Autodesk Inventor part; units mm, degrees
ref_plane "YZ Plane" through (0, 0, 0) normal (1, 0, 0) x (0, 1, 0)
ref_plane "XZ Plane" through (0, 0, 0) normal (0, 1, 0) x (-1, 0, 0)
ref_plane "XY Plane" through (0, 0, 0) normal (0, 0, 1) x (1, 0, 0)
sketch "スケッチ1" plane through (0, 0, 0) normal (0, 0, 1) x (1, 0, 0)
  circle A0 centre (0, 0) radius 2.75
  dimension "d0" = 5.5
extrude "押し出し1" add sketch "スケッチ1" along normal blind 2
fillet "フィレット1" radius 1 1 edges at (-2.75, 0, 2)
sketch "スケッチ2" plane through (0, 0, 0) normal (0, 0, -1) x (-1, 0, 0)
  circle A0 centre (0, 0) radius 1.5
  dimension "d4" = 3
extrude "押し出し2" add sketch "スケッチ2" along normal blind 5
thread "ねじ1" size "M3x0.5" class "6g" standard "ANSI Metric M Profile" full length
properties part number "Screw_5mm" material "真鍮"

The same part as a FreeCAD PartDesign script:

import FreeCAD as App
import Part
import Sketcher
from FreeCAD import Vector


def edges_at(feature, points):
    """Names of the edges that pass closest to the given points."""
    edges = feature.Shape.Edges
    near = lambda p: min(range(len(edges)), key=lambda i: edges[i].distToShape(Part.Vertex(*p))[0])
    return sorted({f"Edge{near(p) + 1}" for p in points})

doc = App.newDocument("Part")
body = doc.addObject("PartDesign::Body", "Body")

# Sketch on XY plane
sketch1 = body.newObject("Sketcher::SketchObject", "Sketch")
sketch1.AttachmentSupport = (doc.getObject("XY_Plane"), [""])
sketch1.MapMode = "FlatFace"
sketch1.addGeometry(Part.Circle(Vector(0, 0, 0), Vector(0, 0, 1), 2.8), False)
sketch1.addConstraint([
    Sketcher.Constraint("Coincident", 0, 3, -1, 1),
    Sketcher.Constraint("Diameter", 0, 5.5),
])
pad1 = body.newObject("PartDesign::Pad", "Pad")
pad1.Profile = sketch1
pad1.Length = 2
doc.recompute()

fillet = body.newObject("PartDesign::Fillet", "Fillet")
fillet.Base = (pad1, edges_at(pad1, [(-2.75, 0, 2)]))
fillet.Radius = 1

# Sketch on XY plane
sketch2 = body.newObject("Sketcher::SketchObject", "Sketch001")
sketch2.AttachmentSupport = (doc.getObject("XY_Plane"), [""])
sketch2.MapMode = "FlatFace"
sketch2.addGeometry(Part.Circle(Vector(0, 0, 0), Vector(0, 0, 1), 1.5), False)
sketch2.addConstraint([
    Sketcher.Constraint("Coincident", 0, 3, -1, 1),
    Sketcher.Constraint("Diameter", 0, 3.0),
])
pad2 = body.newObject("PartDesign::Pad", "Pad001")
pad2.Profile = sketch2
pad2.Length = 5
pad2.Reversed = True

doc.recompute()
